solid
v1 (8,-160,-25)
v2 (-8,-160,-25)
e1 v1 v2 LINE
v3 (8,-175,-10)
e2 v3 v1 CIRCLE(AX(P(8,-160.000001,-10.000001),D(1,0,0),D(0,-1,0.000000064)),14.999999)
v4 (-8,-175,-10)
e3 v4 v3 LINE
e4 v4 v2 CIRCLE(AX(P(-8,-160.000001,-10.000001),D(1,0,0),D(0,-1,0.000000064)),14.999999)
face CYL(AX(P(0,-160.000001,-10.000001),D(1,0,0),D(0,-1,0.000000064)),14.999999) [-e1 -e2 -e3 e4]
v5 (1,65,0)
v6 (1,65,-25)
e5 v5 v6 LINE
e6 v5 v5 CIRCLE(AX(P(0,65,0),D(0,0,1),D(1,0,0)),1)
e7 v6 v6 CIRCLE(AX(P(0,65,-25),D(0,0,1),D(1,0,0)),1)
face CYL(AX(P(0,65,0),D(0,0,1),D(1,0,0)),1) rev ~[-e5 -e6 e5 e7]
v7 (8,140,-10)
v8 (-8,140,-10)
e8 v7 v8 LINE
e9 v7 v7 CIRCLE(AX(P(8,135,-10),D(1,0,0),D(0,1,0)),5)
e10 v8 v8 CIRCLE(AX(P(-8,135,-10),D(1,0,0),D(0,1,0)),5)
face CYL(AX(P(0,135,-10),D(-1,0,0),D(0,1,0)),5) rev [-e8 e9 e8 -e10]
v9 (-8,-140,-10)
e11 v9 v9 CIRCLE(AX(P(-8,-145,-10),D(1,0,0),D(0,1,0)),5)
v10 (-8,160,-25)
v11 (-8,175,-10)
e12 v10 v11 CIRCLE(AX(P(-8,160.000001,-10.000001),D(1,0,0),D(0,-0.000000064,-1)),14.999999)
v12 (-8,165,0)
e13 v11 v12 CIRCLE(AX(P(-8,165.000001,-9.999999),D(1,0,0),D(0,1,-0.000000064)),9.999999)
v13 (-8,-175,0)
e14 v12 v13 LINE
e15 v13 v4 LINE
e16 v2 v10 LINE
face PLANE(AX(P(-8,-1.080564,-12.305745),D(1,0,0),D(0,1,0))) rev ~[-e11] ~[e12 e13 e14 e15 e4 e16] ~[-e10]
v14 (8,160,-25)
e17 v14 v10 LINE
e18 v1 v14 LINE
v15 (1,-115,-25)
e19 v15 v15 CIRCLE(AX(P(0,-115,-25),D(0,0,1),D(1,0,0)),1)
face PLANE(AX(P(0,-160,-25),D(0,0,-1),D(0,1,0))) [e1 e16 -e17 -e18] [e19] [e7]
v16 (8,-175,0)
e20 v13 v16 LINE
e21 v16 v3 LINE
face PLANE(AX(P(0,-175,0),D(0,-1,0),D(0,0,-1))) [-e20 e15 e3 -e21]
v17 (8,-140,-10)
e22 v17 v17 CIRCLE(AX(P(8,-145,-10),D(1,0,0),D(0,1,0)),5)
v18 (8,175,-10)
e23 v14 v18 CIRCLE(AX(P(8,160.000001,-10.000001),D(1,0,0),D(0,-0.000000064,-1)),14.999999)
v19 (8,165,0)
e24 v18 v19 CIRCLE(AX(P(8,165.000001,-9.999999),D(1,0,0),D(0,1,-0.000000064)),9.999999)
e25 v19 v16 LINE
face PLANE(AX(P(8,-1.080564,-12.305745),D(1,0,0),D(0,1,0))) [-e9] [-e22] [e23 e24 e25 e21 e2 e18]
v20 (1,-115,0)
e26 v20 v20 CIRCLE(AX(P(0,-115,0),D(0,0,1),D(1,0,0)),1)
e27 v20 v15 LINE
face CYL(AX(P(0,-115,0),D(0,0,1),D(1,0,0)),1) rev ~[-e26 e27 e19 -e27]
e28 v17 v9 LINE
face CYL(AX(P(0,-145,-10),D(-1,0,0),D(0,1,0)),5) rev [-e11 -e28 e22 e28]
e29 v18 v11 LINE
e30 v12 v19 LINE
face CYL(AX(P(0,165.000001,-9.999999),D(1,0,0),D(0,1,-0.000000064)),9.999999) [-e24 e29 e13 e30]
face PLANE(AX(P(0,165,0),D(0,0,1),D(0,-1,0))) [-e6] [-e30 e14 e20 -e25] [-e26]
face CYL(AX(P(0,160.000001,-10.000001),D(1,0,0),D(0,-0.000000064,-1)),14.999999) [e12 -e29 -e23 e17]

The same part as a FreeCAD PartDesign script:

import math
import FreeCAD as App
import Part
import Sketcher
from FreeCAD import Vector

doc = App.newDocument("Part")
body = doc.addObject("PartDesign::Body", "Body")

# Sketch on YZ plane
sketch1 = doc.addObject("Sketcher::SketchObject", "Sketch")
body.addObject(sketch1)
sketch1.AttachmentSupport = (doc.YZ_Plane, [""])
sketch1.MapMode = "FlatFace"
sketch1.addGeometry([
    Part.ArcOfCircle(Part.Circle(Vector(165, -10, 0), Vector(0, 0, 1), 10), math.radians(0), math.radians(90)),  # 0
    Part.LineSegment(Vector(165, 0, 0), Vector(-175, 0, 0)),  # 1
    Part.LineSegment(Vector(-175, 0, 0), Vector(-175, -10, 0)),  # 2
    Part.ArcOfCircle(Part.Circle(Vector(-160, -10, 0), Vector(0, 0, 1), 15), math.radians(180), math.radians(270)),  # 3
    Part.LineSegment(Vector(-160, -25, 0), Vector(160, -25, 0)),  # 4
    Part.ArcOfCircle(Part.Circle(Vector(160, -10, 0), Vector(0, 0, 1), 15), math.radians(-90), math.radians(0)),  # 5
    Part.Circle(Vector(-145, -10, 0), Vector(0, 0, 1), 5),  # 6
    Part.Circle(Vector(135, -10, 0), Vector(0, 0, 1), 5),  # 7
], False)
sketch1.addConstraint([
    Sketcher.Constraint("Tangent", 0, 2, 1, 1),
    Sketcher.Constraint("Coincident", 1, 2, 2, 1),
    Sketcher.Constraint("Tangent", 2, 2, 3, 1),
    Sketcher.Constraint("Tangent", 3, 2, 4, 1),
    Sketcher.Constraint("Tangent", 4, 2, 5, 1),
    Sketcher.Constraint("Tangent", 5, 2, 0, 1),
    Sketcher.Constraint("Horizontal", 1),
    Sketcher.Constraint("Vertical", 2),
    Sketcher.Constraint("Horizontal", 4),
    Sketcher.Constraint("Equal", 3, 5),
    Sketcher.Constraint("Equal", 6, 7),
    Sketcher.Constraint("Symmetric", 2, 2, 5, 2, -2),
    Sketcher.Constraint("PointOnObject", 0, 2, -1),
    Sketcher.Constraint("Horizontal", 5, 3, 6, 3),
    Sketcher.Constraint("Horizontal", 6, 3, 7, 3),
    Sketcher.Constraint("Diameter", 6, 10.0),
    Sketcher.Constraint("Radius", 0, 9.999999),
    Sketcher.Constraint("Radius", 3, 14.999999),
    Sketcher.Constraint("DistanceX", 1, 2, 1, 1, 340.0),
    Sketcher.Constraint("DistanceX", 6, 3, -1, 1, 145.0),
    Sketcher.Constraint("DistanceX", -1, 1, 7, 3, 135.0),
])
pad1 = doc.addObject("PartDesign::Pad", "Pad")
body.addObject(pad1)
pad1.Profile = sketch1
pad1.Length = 16
pad1.Midplane = True

# Sketch on XY plane
sketch2 = doc.addObject("Sketcher::SketchObject", "Sketch001")
body.addObject(sketch2)
sketch2.AttachmentSupport = (doc.XY_Plane, [""])
sketch2.MapMode = "FlatFace"
sketch2.addGeometry([
    Part.Circle(Vector(0, 65, 0), Vector(0, 0, 1), 1),
    Part.Circle(Vector(0, -115, 0), Vector(0, 0, 1), 1),
], False)
sketch2.addConstraint([
    Sketcher.Constraint("Equal", 0, 1),
    Sketcher.Constraint("PointOnObject", 0, 3, -2),
    Sketcher.Constraint("PointOnObject", 1, 3, -2),
    Sketcher.Constraint("Diameter", 0, 2.0),
    Sketcher.Constraint("DistanceY", -1, 1, 0, 3, 65.0),
    Sketcher.Constraint("DistanceY", 1, 3, -1, 1, 115.0),
])
pocket1 = doc.addObject("PartDesign::Pocket", "Pocket")
body.addObject(pocket1)
pocket1.Profile = sketch2
pocket1.Type = "ThroughAll"

doc.recompute()
